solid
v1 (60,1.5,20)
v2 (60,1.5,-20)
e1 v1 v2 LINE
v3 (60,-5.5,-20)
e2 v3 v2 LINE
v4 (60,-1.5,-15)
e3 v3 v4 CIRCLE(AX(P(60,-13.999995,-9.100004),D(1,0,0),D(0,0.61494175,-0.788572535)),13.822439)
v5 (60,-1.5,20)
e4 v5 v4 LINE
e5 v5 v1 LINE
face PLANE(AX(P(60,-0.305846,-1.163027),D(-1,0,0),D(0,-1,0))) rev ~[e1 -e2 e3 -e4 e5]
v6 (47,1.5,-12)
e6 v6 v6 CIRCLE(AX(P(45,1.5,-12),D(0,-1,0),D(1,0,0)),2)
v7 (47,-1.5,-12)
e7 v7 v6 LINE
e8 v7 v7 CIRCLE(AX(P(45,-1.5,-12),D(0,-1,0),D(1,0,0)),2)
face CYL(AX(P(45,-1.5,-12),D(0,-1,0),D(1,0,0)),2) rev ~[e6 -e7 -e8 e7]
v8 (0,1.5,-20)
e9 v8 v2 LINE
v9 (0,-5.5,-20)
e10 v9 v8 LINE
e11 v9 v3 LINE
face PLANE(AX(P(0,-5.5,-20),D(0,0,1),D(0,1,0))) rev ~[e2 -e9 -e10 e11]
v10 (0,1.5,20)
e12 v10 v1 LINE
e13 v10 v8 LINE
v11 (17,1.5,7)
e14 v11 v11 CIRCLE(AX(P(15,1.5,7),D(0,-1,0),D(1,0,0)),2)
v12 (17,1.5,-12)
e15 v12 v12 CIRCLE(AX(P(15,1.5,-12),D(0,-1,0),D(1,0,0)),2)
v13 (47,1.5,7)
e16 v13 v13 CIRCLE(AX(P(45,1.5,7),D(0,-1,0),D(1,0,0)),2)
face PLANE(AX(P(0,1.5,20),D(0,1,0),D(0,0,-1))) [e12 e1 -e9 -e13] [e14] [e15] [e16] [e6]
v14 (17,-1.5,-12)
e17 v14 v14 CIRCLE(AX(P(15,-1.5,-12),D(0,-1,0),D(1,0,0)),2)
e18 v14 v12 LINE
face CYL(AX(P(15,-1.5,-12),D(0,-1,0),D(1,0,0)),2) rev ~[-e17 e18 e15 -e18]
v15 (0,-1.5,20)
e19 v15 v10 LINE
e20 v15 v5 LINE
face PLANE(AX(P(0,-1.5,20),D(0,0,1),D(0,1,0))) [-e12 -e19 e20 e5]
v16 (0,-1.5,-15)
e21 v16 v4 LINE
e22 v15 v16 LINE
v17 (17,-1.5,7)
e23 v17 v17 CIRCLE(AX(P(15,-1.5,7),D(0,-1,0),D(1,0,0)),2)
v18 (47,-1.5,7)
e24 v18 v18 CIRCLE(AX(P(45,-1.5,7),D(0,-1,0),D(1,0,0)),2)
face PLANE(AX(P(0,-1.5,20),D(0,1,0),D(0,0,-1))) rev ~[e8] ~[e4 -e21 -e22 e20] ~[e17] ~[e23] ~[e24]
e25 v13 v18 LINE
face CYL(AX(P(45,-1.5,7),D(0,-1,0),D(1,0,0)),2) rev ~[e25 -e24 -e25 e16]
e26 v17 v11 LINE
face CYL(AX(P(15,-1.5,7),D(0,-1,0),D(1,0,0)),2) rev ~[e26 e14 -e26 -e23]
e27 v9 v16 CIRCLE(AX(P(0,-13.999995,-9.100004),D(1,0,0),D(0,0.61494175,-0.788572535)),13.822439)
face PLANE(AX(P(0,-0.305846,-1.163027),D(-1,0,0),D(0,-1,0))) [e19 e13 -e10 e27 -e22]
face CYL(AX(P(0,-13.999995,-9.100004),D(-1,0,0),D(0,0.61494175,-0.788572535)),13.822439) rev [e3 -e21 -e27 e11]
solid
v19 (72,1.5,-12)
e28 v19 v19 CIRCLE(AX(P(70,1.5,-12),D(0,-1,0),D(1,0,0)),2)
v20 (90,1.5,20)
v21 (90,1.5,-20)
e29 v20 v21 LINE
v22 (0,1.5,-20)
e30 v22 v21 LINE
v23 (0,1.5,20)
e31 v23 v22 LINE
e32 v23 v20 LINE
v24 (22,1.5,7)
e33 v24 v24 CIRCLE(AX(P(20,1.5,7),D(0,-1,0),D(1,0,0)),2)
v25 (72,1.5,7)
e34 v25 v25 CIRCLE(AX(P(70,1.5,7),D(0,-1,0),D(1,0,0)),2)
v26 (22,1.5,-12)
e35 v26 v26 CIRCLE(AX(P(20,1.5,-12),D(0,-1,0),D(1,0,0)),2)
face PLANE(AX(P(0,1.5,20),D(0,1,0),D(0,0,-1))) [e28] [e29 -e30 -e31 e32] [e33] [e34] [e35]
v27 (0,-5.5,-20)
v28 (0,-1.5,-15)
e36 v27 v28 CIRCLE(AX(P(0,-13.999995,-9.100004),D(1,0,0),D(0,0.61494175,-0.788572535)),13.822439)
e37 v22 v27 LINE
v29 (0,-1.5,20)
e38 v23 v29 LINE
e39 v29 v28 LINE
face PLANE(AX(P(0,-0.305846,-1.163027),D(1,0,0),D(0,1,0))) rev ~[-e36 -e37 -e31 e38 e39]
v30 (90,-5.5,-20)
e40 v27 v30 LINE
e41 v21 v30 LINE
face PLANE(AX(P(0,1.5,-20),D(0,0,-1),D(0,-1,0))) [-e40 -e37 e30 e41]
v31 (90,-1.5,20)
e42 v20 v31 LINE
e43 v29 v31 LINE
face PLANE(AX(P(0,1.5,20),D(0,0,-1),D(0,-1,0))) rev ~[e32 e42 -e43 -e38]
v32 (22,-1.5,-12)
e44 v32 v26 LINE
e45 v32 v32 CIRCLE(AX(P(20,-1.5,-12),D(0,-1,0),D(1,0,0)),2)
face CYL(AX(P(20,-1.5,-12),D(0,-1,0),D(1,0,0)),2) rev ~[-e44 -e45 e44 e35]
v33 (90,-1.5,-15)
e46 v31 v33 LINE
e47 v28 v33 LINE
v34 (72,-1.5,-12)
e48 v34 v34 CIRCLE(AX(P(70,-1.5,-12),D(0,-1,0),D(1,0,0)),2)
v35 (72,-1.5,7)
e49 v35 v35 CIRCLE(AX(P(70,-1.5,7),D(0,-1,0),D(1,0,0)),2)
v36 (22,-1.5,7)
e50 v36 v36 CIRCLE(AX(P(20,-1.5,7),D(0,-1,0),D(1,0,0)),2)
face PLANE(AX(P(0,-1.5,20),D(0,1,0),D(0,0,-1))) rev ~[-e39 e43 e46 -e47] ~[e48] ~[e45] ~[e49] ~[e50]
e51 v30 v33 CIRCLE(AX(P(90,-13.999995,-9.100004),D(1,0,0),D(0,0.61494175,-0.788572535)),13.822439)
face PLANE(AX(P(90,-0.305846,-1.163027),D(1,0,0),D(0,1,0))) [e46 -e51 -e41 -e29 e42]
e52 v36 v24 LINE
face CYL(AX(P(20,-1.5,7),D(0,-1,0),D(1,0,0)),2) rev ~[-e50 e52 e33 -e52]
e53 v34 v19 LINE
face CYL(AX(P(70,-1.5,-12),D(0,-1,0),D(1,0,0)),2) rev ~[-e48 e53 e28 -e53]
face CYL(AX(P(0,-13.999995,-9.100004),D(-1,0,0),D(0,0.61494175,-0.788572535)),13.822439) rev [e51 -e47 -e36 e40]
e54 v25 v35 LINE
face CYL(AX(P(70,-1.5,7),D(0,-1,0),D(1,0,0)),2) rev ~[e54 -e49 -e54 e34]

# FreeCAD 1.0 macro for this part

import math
import FreeCAD as App
import Part
import Sketcher
from FreeCAD import Vector

doc = App.newDocument("Part")
body = doc.addObject("PartDesign::Body", "Body")
body.AllowCompound = True

# Sketch on XZ plane
sketch1 = doc.addObject("Sketcher::SketchObject", "Sketch")
body.addObject(sketch1)
sketch1.AttachmentSupport = (doc.XZ_Plane, [""])
sketch1.MapMode = "FlatFace"
sketch1.AttachmentOffset = App.Placement(Vector(0, 0, 1.5), App.Rotation())
sketch1.addGeometry([
    Part.Circle(Vector(15, -12, 0), Vector(0, 0, 1), 2),
    Part.Circle(Vector(15, 7, 0), Vector(0, 0, 1), 2),
    Part.Circle(Vector(45, -12, 0), Vector(0, 0, 1), 2),
    Part.Circle(Vector(45, 7, 0), Vector(0, 0, 1), 2),
], False)
sketch1.addConstraint([
    Sketcher.Constraint("Equal", 0, 1),
    Sketcher.Constraint("Equal", 1, 2),
    Sketcher.Constraint("Equal", 2, 3),
    Sketcher.Constraint("Horizontal", 0, 3, 2, 3),
    Sketcher.Constraint("Horizontal", 1, 3, 3, 3),
    Sketcher.Constraint("Vertical", 0, 3, 1, 3),
    Sketcher.Constraint("Vertical", 2, 3, 3, 3),
    Sketcher.Constraint("Diameter", 0, 4.0),
    Sketcher.Constraint("DistanceX", -1, 1, 0, 3, 15.0),
    Sketcher.Constraint("DistanceY", 0, 3, -1, 1, 12.0),
    Sketcher.Constraint("DistanceY", -1, 1, 1, 3, 7.0),
    Sketcher.Constraint("DistanceX", -1, 1, 2, 3, 45.0),
])
pad1 = doc.addObject("PartDesign::Pad", "Pad")
body.addObject(pad1)
pad1.Profile = sketch1
pad1.Length = 10
pad1.Midplane = True
body2 = doc.addObject("PartDesign::Body", "Body001")

# Sketch on YZ plane
sketch2 = doc.addObject("Sketcher::SketchObject", "Sketch001")
body2.addObject(sketch2)
sketch2.AttachmentSupport = (doc.getObject("YZ_Plane001"), [""])
sketch2.MapMode = "FlatFace"
sketch2.addGeometry([
    Part.LineSegment(Vector(1.5, 20, 0), Vector(-1.5, 20, 0)),  # 0
    Part.LineSegment(Vector(-1.5, 20, 0), Vector(-1.5, -15, 0)),  # 1
    Part.ArcOfCircle(Part.Circle(Vector(-14, -9.1, 0), Vector(0, 0, 1), 13.8), math.radians(-52), math.radians(-25)),  # 2
    Part.LineSegment(Vector(-5.5, -20, 0), Vector(1.5, -20, 0)),  # 3
    Part.LineSegment(Vector(1.5, -20, 0), Vector(1.5, 20, 0)),  # 4
], False)
sketch2.addConstraint([
    Sketcher.Constraint("Coincident", 0, 2, 1, 1),
    Sketcher.Constraint("Coincident", 1, 2, 2, 2),
    Sketcher.Constraint("Coincident", 2, 1, 3, 1),
    Sketcher.Constraint("Coincident", 3, 2, 4, 1),
    Sketcher.Constraint("Coincident", 4, 2, 0, 1),
    Sketcher.Constraint("Horizontal", 0),
    Sketcher.Constraint("Vertical", 1),
    Sketcher.Constraint("Horizontal", 3),
    Sketcher.Constraint("Vertical", 4),
    Sketcher.Constraint("Symmetric", 0, 2, 3, 2, -1, 1),
    Sketcher.Constraint("DistanceX", 0, 2, 0, 1, 3.0),
    Sketcher.Constraint("DistanceX", 3, 1, 3, 2, 7.0),
    Sketcher.Constraint("DistanceY", 1, 2, 1, 1, 35.0),
    Sketcher.Constraint("DistanceY", 4, 1, 4, 2, 40.0),
    Sketcher.Constraint("Radius", 2, 13.822439),
])
pad2 = doc.addObject("PartDesign::Pad", "Pad001")
body2.addObject(pad2)
pad2.Profile = sketch2
pad2.Length = 60
doc.recompute()

boolean = doc.addObject("PartDesign::Boolean", "Boolean")
body2.addObject(boolean)
boolean.Type = "Cut"
boolean.addObjects([body])
body3 = doc.addObject("PartDesign::Body", "Body002")
body3.AllowCompound = True

# Sketch on XZ plane
sketch3 = doc.addObject("Sketcher::SketchObject", "Sketch002")
body3.addObject(sketch3)
sketch3.AttachmentSupport = (doc.getObject("XZ_Plane002"), [""])
sketch3.MapMode = "FlatFace"
sketch3.AttachmentOffset = App.Placement(Vector(0, 0, 1.5), App.Rotation())
sketch3.addGeometry([
    Part.Circle(Vector(20, -12, 0), Vector(0, 0, 1), 2),
    Part.Circle(Vector(20, 7, 0), Vector(0, 0, 1), 2),
    Part.Circle(Vector(70, -12, 0), Vector(0, 0, 1), 2),
    Part.Circle(Vector(70, 7, 0), Vector(0, 0, 1), 2),
], False)
sketch3.addConstraint([
    Sketcher.Constraint("Equal", 0, 1),
    Sketcher.Constraint("Equal", 1, 2),
    Sketcher.Constraint("Equal", 2, 3),
    Sketcher.Constraint("Horizontal", 0, 3, 2, 3),
    Sketcher.Constraint("Horizontal", 1, 3, 3, 3),
    Sketcher.Constraint("Vertical", 0, 3, 1, 3),
    Sketcher.Constraint("Vertical", 2, 3, 3, 3),
    Sketcher.Constraint("Diameter", 0, 4.0),
    Sketcher.Constraint("DistanceX", -1, 1, 0, 3, 20.0),
    Sketcher.Constraint("DistanceY", 0, 3, -1, 1, 12.0),
    Sketcher.Constraint("DistanceY", -1, 1, 1, 3, 7.0),
    Sketcher.Constraint("DistanceX", -1, 1, 2, 3, 70.0),
])
pad3 = doc.addObject("PartDesign::Pad", "Pad002")
body3.addObject(pad3)
pad3.Profile = sketch3
pad3.Length = 10
pad3.Midplane = True
body4 = doc.addObject("PartDesign::Body", "Body003")

# Sketch on YZ plane
sketch4 = doc.addObject("Sketcher::SketchObject", "Sketch003")
body4.addObject(sketch4)
sketch4.AttachmentSupport = (doc.getObject("YZ_Plane003"), [""])
sketch4.MapMode = "FlatFace"
sketch4.addGeometry([
    Part.LineSegment(Vector(1.5, 20, 0), Vector(-1.5, 20, 0)),  # 0
    Part.LineSegment(Vector(-1.5, 20, 0), Vector(-1.5, -15, 0)),  # 1
    Part.ArcOfCircle(Part.Circle(Vector(-14, -9.1, 0), Vector(0, 0, 1), 13.8), math.radians(-52), math.radians(-25)),  # 2
    Part.LineSegment(Vector(-5.5, -20, 0), Vector(1.5, -20, 0)),  # 3
    Part.LineSegment(Vector(1.5, -20, 0), Vector(1.5, 20, 0)),  # 4
], False)
sketch4.addConstraint([
    Sketcher.Constraint("Coincident", 0, 2, 1, 1),
    Sketcher.Constraint("Coincident", 1, 2, 2, 2),
    Sketcher.Constraint("Coincident", 2, 1, 3, 1),
    Sketcher.Constraint("Coincident", 3, 2, 4, 1),
    Sketcher.Constraint("Coincident", 4, 2, 0, 1),
    Sketcher.Constraint("Horizontal", 0),
    Sketcher.Constraint("Vertical", 1),
    Sketcher.Constraint("Horizontal", 3),
    Sketcher.Constraint("Vertical", 4),
    Sketcher.Constraint("Symmetric", 0, 2, 3, 2, -1, 1),
    Sketcher.Constraint("DistanceX", 0, 2, 0, 1, 3.0),
    Sketcher.Constraint("DistanceX", 3, 1, 3, 2, 7.0),
    Sketcher.Constraint("DistanceY", 1, 2, 1, 1, 35.0),
    Sketcher.Constraint("DistanceY", 4, 1, 4, 2, 40.0),
    Sketcher.Constraint("Radius", 2, 13.822439),
])
pad4 = doc.addObject("PartDesign::Pad", "Pad003")
body4.addObject(pad4)
pad4.Profile = sketch4
pad4.Length = 90
doc.recompute()

boolean2 = doc.addObject("PartDesign::Boolean", "Boolean001")
body4.addObject(boolean2)
boolean2.Type = "Cut"
boolean2.addObjects([body3])

doc.recompute()
